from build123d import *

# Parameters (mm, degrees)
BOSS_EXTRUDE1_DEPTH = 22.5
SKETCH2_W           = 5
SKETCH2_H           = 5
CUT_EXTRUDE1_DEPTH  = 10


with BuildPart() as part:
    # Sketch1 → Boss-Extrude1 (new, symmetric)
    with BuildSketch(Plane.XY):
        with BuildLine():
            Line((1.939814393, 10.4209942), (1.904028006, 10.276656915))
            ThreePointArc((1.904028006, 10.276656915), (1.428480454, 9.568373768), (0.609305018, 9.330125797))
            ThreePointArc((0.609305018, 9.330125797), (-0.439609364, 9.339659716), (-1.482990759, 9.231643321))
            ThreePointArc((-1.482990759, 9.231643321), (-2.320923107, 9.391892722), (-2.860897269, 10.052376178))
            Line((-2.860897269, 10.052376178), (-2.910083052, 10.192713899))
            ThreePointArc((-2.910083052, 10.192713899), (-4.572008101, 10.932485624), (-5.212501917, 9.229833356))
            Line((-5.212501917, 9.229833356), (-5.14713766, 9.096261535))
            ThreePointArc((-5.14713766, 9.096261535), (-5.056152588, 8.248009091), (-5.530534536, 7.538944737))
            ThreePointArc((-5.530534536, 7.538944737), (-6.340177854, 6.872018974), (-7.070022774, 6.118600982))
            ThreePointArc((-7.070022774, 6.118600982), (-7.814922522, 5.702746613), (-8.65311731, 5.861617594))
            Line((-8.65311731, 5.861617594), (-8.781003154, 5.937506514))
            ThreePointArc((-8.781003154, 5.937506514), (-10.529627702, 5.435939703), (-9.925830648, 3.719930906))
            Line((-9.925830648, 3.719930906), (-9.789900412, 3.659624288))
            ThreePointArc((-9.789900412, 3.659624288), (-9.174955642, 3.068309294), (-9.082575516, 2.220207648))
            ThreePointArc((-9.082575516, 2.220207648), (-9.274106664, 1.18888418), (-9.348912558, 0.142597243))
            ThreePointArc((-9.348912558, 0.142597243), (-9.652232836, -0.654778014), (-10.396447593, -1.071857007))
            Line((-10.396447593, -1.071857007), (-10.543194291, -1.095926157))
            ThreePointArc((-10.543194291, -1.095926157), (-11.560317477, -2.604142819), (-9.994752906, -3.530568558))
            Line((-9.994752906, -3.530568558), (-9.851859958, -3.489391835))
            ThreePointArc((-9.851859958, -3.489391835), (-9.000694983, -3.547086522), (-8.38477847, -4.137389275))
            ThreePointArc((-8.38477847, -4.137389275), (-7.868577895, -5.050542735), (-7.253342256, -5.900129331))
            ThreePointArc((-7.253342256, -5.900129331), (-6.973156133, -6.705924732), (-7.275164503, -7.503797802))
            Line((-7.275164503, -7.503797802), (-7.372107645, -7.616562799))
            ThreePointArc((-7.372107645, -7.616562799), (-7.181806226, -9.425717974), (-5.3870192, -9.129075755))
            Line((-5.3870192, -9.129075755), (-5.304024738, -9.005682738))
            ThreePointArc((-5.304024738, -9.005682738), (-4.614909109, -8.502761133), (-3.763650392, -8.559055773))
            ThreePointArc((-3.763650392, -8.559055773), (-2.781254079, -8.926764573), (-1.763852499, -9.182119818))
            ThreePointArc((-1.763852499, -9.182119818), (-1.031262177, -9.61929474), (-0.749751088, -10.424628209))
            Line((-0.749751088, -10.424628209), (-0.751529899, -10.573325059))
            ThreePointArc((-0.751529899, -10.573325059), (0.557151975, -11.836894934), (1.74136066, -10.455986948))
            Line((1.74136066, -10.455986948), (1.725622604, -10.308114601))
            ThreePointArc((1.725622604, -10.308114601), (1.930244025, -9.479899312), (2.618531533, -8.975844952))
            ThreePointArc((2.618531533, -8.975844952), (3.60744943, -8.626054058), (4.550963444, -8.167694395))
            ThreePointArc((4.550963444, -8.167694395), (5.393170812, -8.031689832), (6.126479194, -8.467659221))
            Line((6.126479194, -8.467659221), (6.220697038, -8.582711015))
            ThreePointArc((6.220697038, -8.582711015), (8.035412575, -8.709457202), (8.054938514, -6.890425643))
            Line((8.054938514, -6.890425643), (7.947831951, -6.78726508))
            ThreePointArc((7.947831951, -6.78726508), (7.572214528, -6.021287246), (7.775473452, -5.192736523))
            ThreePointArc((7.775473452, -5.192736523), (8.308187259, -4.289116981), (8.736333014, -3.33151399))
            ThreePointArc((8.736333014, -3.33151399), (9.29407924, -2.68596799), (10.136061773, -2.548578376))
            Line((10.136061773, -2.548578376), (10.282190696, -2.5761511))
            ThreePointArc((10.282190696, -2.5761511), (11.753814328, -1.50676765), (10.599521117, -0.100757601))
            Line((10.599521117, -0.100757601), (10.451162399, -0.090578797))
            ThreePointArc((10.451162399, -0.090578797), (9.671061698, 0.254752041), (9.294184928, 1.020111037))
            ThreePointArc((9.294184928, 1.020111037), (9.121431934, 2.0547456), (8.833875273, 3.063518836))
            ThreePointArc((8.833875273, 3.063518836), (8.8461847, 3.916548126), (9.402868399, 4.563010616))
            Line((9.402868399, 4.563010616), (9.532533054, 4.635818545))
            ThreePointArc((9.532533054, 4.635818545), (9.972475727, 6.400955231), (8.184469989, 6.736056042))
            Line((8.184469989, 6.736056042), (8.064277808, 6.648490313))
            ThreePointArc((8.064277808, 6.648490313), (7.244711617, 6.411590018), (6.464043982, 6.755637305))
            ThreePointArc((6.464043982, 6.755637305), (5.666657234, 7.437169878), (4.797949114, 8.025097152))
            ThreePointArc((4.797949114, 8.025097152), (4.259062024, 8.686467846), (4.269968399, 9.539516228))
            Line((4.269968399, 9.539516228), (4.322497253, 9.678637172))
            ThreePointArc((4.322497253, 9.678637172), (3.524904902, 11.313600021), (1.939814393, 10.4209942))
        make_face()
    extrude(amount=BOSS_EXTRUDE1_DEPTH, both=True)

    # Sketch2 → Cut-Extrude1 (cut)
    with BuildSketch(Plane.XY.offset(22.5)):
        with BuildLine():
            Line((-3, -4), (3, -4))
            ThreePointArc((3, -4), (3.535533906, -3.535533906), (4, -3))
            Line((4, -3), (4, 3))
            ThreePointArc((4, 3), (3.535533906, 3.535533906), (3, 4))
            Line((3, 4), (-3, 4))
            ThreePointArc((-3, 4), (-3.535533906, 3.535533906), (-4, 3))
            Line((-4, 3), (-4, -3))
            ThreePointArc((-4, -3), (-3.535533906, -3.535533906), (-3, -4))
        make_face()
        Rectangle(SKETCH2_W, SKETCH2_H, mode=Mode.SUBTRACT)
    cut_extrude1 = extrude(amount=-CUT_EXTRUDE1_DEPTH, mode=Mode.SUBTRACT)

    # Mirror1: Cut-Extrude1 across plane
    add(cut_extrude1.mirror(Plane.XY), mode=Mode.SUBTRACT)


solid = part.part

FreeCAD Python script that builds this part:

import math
import FreeCAD as App
import Part
import Sketcher

V = App.Vector
Q = App.Units.Quantity


def add_polygon(sketch, points):
    """Adds a closed chain of lines whose ends are joined by coincident constraints."""
    first, n = sketch.GeometryCount, len(points)
    for a, b in zip(points, points[1:] + points[:1]):
        sketch.addGeometry(Part.LineSegment(App.Vector(*a, 0), App.Vector(*b, 0)), False)
    for i in range(n):
        sketch.addConstraint(Sketcher.Constraint("Coincident", first + i, 2, first + (i + 1) % n, 1))

doc = App.newDocument("Part")
body = doc.addObject("PartDesign::Body", "Body")

# Sketch on XY plane
sketch1 = doc.addObject("Sketcher::SketchObject", "Sketch")
body.addObject(sketch1)
sketch1.AttachmentSupport = (doc.XY_Plane, [""])
sketch1.MapMode = "FlatFace"
sketch1.addGeometry([
    Part.LineSegment(V(1.94, 10.42, 0), V(1.9, 10.28, 0)),  # 0
    Part.ArcOfCircle(Part.Circle(V(0.69, 10.58, 0), V(0, 0, 1), 1.25), math.radians(-94), math.radians(-14)),  # 1
    Part.ArcOfCircle(Part.Circle(V(0, 0, 0), V(0, 0, 1), 9.35), math.radians(86.26), math.radians(99.13)),  # 2
    Part.ArcOfCircle(Part.Circle(V(-1.68, 10.47, 0), V(0, 0, 1), 1.25), math.radians(-161), math.radians(-81)),  # 3
    Part.LineSegment(V(-2.86, 10.05, 0), V(-2.91, 10.19, 0)),  # 4
    Part.ArcOfCircle(Part.Circle(V(-4.09, 9.78, 0), V(0, 0, 1), 1.25), math.radians(19), math.radians(206)),  # 5
    Part.LineSegment(V(-5.21, 9.23, 0), V(-5.15, 9.1, 0)),  # 6
    Part.ArcOfCircle(Part.Circle(V(-6.27, 8.55, 0), V(0, 0, 1), 1.25), math.radians(-54), math.radians(26)),  # 7
    Part.ArcOfCircle(Part.Circle(V(0, 0, 0), V(0, 0, 1), 9.35), math.radians(126.26), math.radians(139.13)),  # 8
    Part.ArcOfCircle(Part.Circle(V(-8.02, 6.94, 0), V(0, 0, 1), 1.25), math.radians(-121), math.radians(-41)),  # 9
    Part.LineSegment(V(-8.65, 5.86, 0), V(-8.78, 5.94, 0)),  # 10
    Part.ArcOfCircle(Part.Circle(V(-9.42, 4.86, 0), V(0, 0, 1), 1.25), math.radians(59), math.radians(246)),  # 11
    Part.LineSegment(V(-9.93, 3.72, 0), V(-9.79, 3.66, 0)),  # 12
    Part.ArcOfCircle(Part.Circle(V(-10.3, 2.52, 0), V(0, 0, 1), 1.25), math.radians(-14), math.radians(66)),  # 13
    Part.ArcOfCircle(Part.Circle(V(0, 0, 0), V(0, 0, 1), 9.35), math.radians(166.26), math.radians(179.13)),  # 14
    Part.ArcOfCircle(Part.Circle(V(-10.6, 0.16, 0), V(0, 0, 1), 1.25), math.radians(-81), math.radians(-1)),  # 15
    Part.LineSegment(V(-10.4, -1.07, 0), V(-10.54, -1.1, 0)),  # 16
    Part.ArcOfCircle(Part.Circle(V(-10.34, -2.33, 0), V(0, 0, 1), 1.25), math.radians(99), math.radians(286)),  # 17
    Part.LineSegment(V(-9.99, -3.53, 0), V(-9.85, -3.49, 0)),  # 18
    Part.ArcOfCircle(Part.Circle(V(-9.51, -4.69, 0), V(0, 0, 1), 1.25), math.radians(26), math.radians(106)),  # 19
    Part.ArcOfCircle(Part.Circle(V(0, 0, 0), V(0, 0, 1), 9.35), math.radians(-153.74), math.radians(-140.87)),  # 20
    Part.ArcOfCircle(Part.Circle(V(-8.22, -6.69, 0), V(0, 0, 1), 1.25), math.radians(-41), math.radians(39)),  # 21
    Part.LineSegment(V(-7.28, -7.5, 0), V(-7.37, -7.62, 0)),  # 22
    Part.ArcOfCircle(Part.Circle(V(-6.42, -8.43, 0), V(0, 0, 1), 1.25), math.radians(139), math.radians(326)),  # 23
    Part.LineSegment(V(-5.39, -9.13, 0), V(-5.3, -9.01, 0)),  # 24
    Part.ArcOfCircle(Part.Circle(V(-4.27, -9.7, 0), V(0, 0, 1), 1.25), math.radians(66), math.radians(146)),  # 25
    Part.ArcOfCircle(Part.Circle(V(0, 0, 0), V(0, 0, 1), 9.35), math.radians(-113.74), math.radians(-100.87)),  # 26
    Part.ArcOfCircle(Part.Circle(V(-2, -10.41, 0), V(0, 0, 1), 1.25), math.radians(-1), math.radians(79)),  # 27
    Part.LineSegment(V(-0.75, -10.42, 0), V(-0.75, -10.57, 0)),  # 28
    Part.ArcOfCircle(Part.Circle(V(0.5, -10.59, 0), V(0, 0, 1), 1.25), math.radians(179), math.radians(366)),  # 29
    Part.LineSegment(V(1.74, -10.46, 0), V(1.73, -10.31, 0)),  # 30
    Part.ArcOfCircle(Part.Circle(V(2.97, -10.18, 0), V(0, 0, 1), 1.25), math.radians(106), math.radians(186)),  # 31
    Part.ArcOfCircle(Part.Circle(V(0, 0, 0), V(0, 0, 1), 9.35), math.radians(-73.74), math.radians(-60.87)),  # 32
    Part.ArcOfCircle(Part.Circle(V(5.16, -9.26, 0), V(0, 0, 1), 1.25), math.radians(39), math.radians(119)),  # 33
    Part.LineSegment(V(6.13, -8.47, 0), V(6.22, -8.58, 0)),  # 34
    Part.ArcOfCircle(Part.Circle(V(7.19, -7.79, 0), V(0, 0, 1), 1.25), math.radians(-141), math.radians(46)),  # 35
    Part.LineSegment(V(8.05, -6.89, 0), V(7.95, -6.79, 0)),  # 36
    Part.ArcOfCircle(Part.Circle(V(8.81, -5.89, 0), V(0, 0, 1), 1.25), math.radians(146), math.radians(226)),  # 37
    Part.ArcOfCircle(Part.Circle(V(0, 0, 0), V(0, 0, 1), 9.35), math.radians(-33.74), math.radians(-20.87)),  # 38
    Part.ArcOfCircle(Part.Circle(V(9.9, -3.78, 0), V(0, 0, 1), 1.25), math.radians(79), math.radians(159)),  # 39
    Part.LineSegment(V(10.14, -2.55, 0), V(10.28, -2.58, 0)),  # 40
    Part.ArcOfCircle(Part.Circle(V(10.51, -1.35, 0), V(0, 0, 1), 1.25), math.radians(-101), math.radians(86)),  # 41
    Part.LineSegment(V(10.6, -0.1, 0), V(10.45, -0.09, 0)),  # 42
    Part.ArcOfCircle(Part.Circle(V(10.54, 1.16, 0), V(0, 0, 1), 1.25), math.radians(-174), math.radians(-94)),  # 43
    Part.ArcOfCircle(Part.Circle(V(0, 0, 0), V(0, 0, 1), 9.35), math.radians(6.26), math.radians(19.13)),  # 44
    Part.ArcOfCircle(Part.Circle(V(10.01, 3.47, 0), V(0, 0, 1), 1.25), math.radians(119), math.radians(199)),  # 45
    Part.LineSegment(V(9.4, 4.56, 0), V(9.53, 4.64, 0)),  # 46
    Part.ArcOfCircle(Part.Circle(V(8.92, 5.73, 0), V(0, 0, 1), 1.25), math.radians(-61), math.radians(126)),  # 47
    Part.LineSegment(V(8.18, 6.74, 0), V(8.06, 6.65, 0)),  # 48
    Part.ArcOfCircle(Part.Circle(V(7.33, 7.66, 0), V(0, 0, 1), 1.25), math.radians(-134), math.radians(-54)),  # 49
    Part.ArcOfCircle(Part.Circle(V(0, 0, 0), V(0, 0, 1), 9.35), math.radians(46.26), math.radians(59.13)),  # 50
    Part.ArcOfCircle(Part.Circle(V(5.44, 9.1, 0), V(0, 0, 1), 1.25), math.radians(159), math.radians(239)),  # 51
    Part.LineSegment(V(4.27, 9.54, 0), V(4.32, 9.68, 0)),  # 52
    Part.ArcOfCircle(Part.Circle(V(3.15, 10.12, 0), V(0, 0, 1), 1.25), math.radians(-21), math.radians(166)),  # 53
], False)
sketch1.addConstraint([
    Sketcher.Constraint("Tangent", 0, 2, 1, 2),
    Sketcher.Constraint("Tangent", 1, 1, 2, 1),
    Sketcher.Constraint("Tangent", 2, 2, 3, 2),
    Sketcher.Constraint("Tangent", 3, 1, 4, 1),
    Sketcher.Constraint("Tangent", 4, 2, 5, 1),
    Sketcher.Constraint("Tangent", 5, 2, 6, 1),
    Sketcher.Constraint("Tangent", 6, 2, 7, 2),
    Sketcher.Constraint("Tangent", 7, 1, 8, 1),
    Sketcher.Constraint("Tangent", 8, 2, 9, 2),
    Sketcher.Constraint("Tangent", 9, 1, 10, 1),
    Sketcher.Constraint("Tangent", 10, 2, 11, 1),
    Sketcher.Constraint("Tangent", 11, 2, 12, 1),
    Sketcher.Constraint("Tangent", 12, 2, 13, 2),
    Sketcher.Constraint("Tangent", 13, 1, 14, 1),
    Sketcher.Constraint("Tangent", 14, 2, 15, 2),
    Sketcher.Constraint("Tangent", 15, 1, 16, 1),
    Sketcher.Constraint("Tangent", 16, 2, 17, 1),
    Sketcher.Constraint("Tangent", 17, 2, 18, 1),
    Sketcher.Constraint("Tangent", 18, 2, 19, 2),
    Sketcher.Constraint("Tangent", 19, 1, 20, 1),
    Sketcher.Constraint("Tangent", 20, 2, 21, 2),
    Sketcher.Constraint("Tangent", 21, 1, 22, 1),
    Sketcher.Constraint("Tangent", 22, 2, 23, 1),
    Sketcher.Constraint("Tangent", 23, 2, 24, 1),
    Sketcher.Constraint("Tangent", 24, 2, 25, 2),
    Sketcher.Constraint("Tangent", 25, 1, 26, 1),
    Sketcher.Constraint("Tangent", 26, 2, 27, 2),
    Sketcher.Constraint("Tangent", 27, 1, 28, 1),
    Sketcher.Constraint("Tangent", 28, 2, 29, 1),
    Sketcher.Constraint("Tangent", 29, 2, 30, 1),
    Sketcher.Constraint("Tangent", 30, 2, 31, 2),
    Sketcher.Constraint("Tangent", 31, 1, 32, 1),
    Sketcher.Constraint("Tangent", 32, 2, 33, 2),
    Sketcher.Constraint("Tangent", 33, 1, 34, 1),
    Sketcher.Constraint("Tangent", 34, 2, 35, 1),
    Sketcher.Constraint("Tangent", 35, 2, 36, 1),
    Sketcher.Constraint("Tangent", 36, 2, 37, 2),
    Sketcher.Constraint("Tangent", 37, 1, 38, 1),
    Sketcher.Constraint("Tangent", 38, 2, 39, 2),
    Sketcher.Constraint("Tangent", 39, 1, 40, 1),
    Sketcher.Constraint("Tangent", 40, 2, 41, 1),
    Sketcher.Constraint("Tangent", 41, 2, 42, 1),
    Sketcher.Constraint("Tangent", 42, 2, 43, 2),
    Sketcher.Constraint("Tangent", 43, 1, 44, 1),
    Sketcher.Constraint("Tangent", 44, 2, 45, 2),
    Sketcher.Constraint("Tangent", 45, 1, 46, 1),
    Sketcher.Constraint("Tangent", 46, 2, 47, 1),
    Sketcher.Constraint("Tangent", 47, 2, 48, 1),
    Sketcher.Constraint("Tangent", 48, 2, 49, 2),
    Sketcher.Constraint("Tangent", 49, 1, 50, 1),
    Sketcher.Constraint("Tangent", 50, 2, 51, 2),
    Sketcher.Constraint("Tangent", 51, 1, 52, 1),
    Sketcher.Constraint("Tangent", 52, 2, 53, 1),
    Sketcher.Constraint("Tangent", 53, 2, 0, 1),
    Sketcher.Constraint("Coincident", 2, 3, -1, 1),
    Sketcher.Constraint("Coincident", 8, 3, -1, 1),
    Sketcher.Constraint("Coincident", 14, 3, -1, 1),
    Sketcher.Constraint("Coincident", 20, 3, -1, 1),
    Sketcher.Constraint("Coincident", 26, 3, -1, 1),
    Sketcher.Constraint("Coincident", 32, 3, -1, 1),
    Sketcher.Constraint("Coincident", 38, 3, -1, 1),
    Sketcher.Constraint("Coincident", 44, 3, -1, 1),
    Sketcher.Constraint("Coincident", 50, 3, -1, 1),
    Sketcher.Constraint("Equal", 1, 3),
    Sketcher.Constraint("Equal", 3, 5),
    Sketcher.Constraint("Equal", 5, 7),
    Sketcher.Constraint("Equal", 2, 8),
    Sketcher.Constraint("Equal", 7, 9),
    Sketcher.Constraint("Equal", 9, 11),
    Sketcher.Constraint("Equal", 11, 13),
    Sketcher.Constraint("Equal", 8, 14),
    Sketcher.Constraint("Equal", 13, 15),
    Sketcher.Constraint("Equal", 15, 17),
    Sketcher.Constraint("Equal", 17, 19),
    Sketcher.Constraint("Equal", 14, 20),
    Sketcher.Constraint("Equal", 19, 21),
    Sketcher.Constraint("Equal", 21, 23),
    Sketcher.Constraint("Equal", 23, 25),
    Sketcher.Constraint("Equal", 20, 26),
    Sketcher.Constraint("Equal", 25, 27),
    Sketcher.Constraint("Equal", 27, 29),
    Sketcher.Constraint("Equal", 29, 31),
    Sketcher.Constraint("Equal", 26, 32),
    Sketcher.Constraint("Equal", 31, 33),
    Sketcher.Constraint("Equal", 33, 35),
    Sketcher.Constraint("Equal", 35, 37),
    Sketcher.Constraint("Equal", 32, 38),
    Sketcher.Constraint("Equal", 37, 39),
    Sketcher.Constraint("Equal", 39, 41),
    Sketcher.Constraint("Equal", 41, 43),
    Sketcher.Constraint("Equal", 38, 44),
    Sketcher.Constraint("Equal", 43, 45),
    Sketcher.Constraint("Equal", 45, 47),
    Sketcher.Constraint("Equal", 47, 49),
    Sketcher.Constraint("Equal", 44, 50),
    Sketcher.Constraint("Equal", 49, 51),
    Sketcher.Constraint("Equal", 51, 53),
    Sketcher.Constraint("Equal", 0, 4),
    Sketcher.Constraint("Equal", 4, 6),
    Sketcher.Constraint("Equal", 6, 10),
    Sketcher.Constraint("Equal", 10, 12),
    Sketcher.Constraint("Equal", 12, 16),
    Sketcher.Constraint("Equal", 16, 18),
    Sketcher.Constraint("Equal", 18, 22),
    Sketcher.Constraint("Equal", 22, 24),
    Sketcher.Constraint("Equal", 24, 28),
    Sketcher.Constraint("Equal", 28, 30),
    Sketcher.Constraint("Equal", 30, 34),
    Sketcher.Constraint("Equal", 34, 36),
    Sketcher.Constraint("Equal", 36, 40),
    Sketcher.Constraint("Equal", 40, 42),
    Sketcher.Constraint("Equal", 42, 46),
    Sketcher.Constraint("Equal", 46, 48),
    Sketcher.Constraint("Equal", 48, 52),
    Sketcher.Constraint("Radius", 1, Q("1.25 mm")),
    Sketcher.Constraint("Radius", 2, Q("9.35 mm")),
    Sketcher.Constraint("DistanceX", 5, 2, -1, 1, Q("5.212502 mm")),
    Sketcher.Constraint("DistanceY", -1, 1, 8, 2, Q("6.118601 mm")),
    Sketcher.Constraint("DistanceX", 12, 2, -1, 1, Q("9.7899 mm")),
    Sketcher.Constraint("DistanceY", -1, 1, 1, 3, Q("10.577469 mm")),
    Sketcher.Constraint("DistanceX", 3, 3, -1, 1, Q("1.681252 mm")),
    Sketcher.Constraint("DistanceX", 5, 3, -1, 1, Q("4.089729 mm")),
    Sketcher.Constraint("DistanceY", -1, 1, 15, 3, Q("0.161661 mm")),
    Sketcher.Constraint("DistanceX", 19, 3, -1, 1, Q("9.505738 mm")),
    Sketcher.Constraint("DistanceX", 21, 3, -1, 1, Q("8.22304 mm")),
    Sketcher.Constraint("DistanceX", 23, 3, -1, 1, Q("6.424232 mm")),
    Sketcher.Constraint("DistanceX", 27, 3, -1, 1, Q("1.999662 mm")),
    Sketcher.Constraint("DistanceX", -1, 1, 29, 3, Q("0.498381 mm")),
    Sketcher.Constraint("DistanceX", -1, 1, 33, 3, Q("5.159381 mm")),
    Sketcher.Constraint("DistanceY", 35, 3, -1, 1, Q("7.790738 mm")),
    Sketcher.Constraint("DistanceX", -1, 1, 39, 3, Q("9.904292 mm")),
    Sketcher.Constraint("DistanceX", -1, 1, 41, 3, Q("10.51396 mm")),
    Sketcher.Constraint("DistanceY", -1, 1, 45, 3, Q("3.47308 mm")),
    Sketcher.Constraint("DistanceY", -1, 1, 47, 3, Q("5.725749 mm")),
    Sketcher.Constraint("DistanceY", -1, 1, 51, 3, Q("9.097971 mm")),
])
pad1 = doc.addObject("PartDesign::Pad", "Pad")
body.addObject(pad1)
pad1.Profile = sketch1
pad1.Length = 45
pad1.Midplane = True

# Sketch on XY plane
sketch2 = doc.addObject("Sketcher::SketchObject", "Sketch001")
body.addObject(sketch2)
sketch2.AttachmentSupport = (doc.XY_Plane, [""])
sketch2.MapMode = "FlatFace"
sketch2.AttachmentOffset = App.Placement(V(0, 0, 22.5), App.Rotation())
sketch2.addGeometry(Part.LineSegment(V(-3, -4, 0), V(3, -4, 0)), False)  # 0
sketch2.addGeometry(Part.ArcOfCircle(Part.Circle(V(0, 0, 0), V(0, 0, 1), 5), math.radians(-53.13), math.radians(-36.87)), False)  # 1
sketch2.addGeometry(Part.LineSegment(V(4, -3, 0), V(4, 3, 0)), False)  # 2
sketch2.addGeometry(Part.ArcOfCircle(Part.Circle(V(0, 0, 0), V(0, 0, 1), 5), math.radians(36.87), math.radians(53.13)), False)  # 3
sketch2.addGeometry(Part.LineSegment(V(3, 4, 0), V(-3, 4, 0)), False)  # 4
sketch2.addGeometry(Part.ArcOfCircle(Part.Circle(V(0, 0, 0), V(0, 0, 1), 5), math.radians(126.87), math.radians(143.13)), False)  # 5
sketch2.addGeometry(Part.LineSegment(V(-4, 3, 0), V(-4, -3, 0)), False)  # 6
sketch2.addGeometry(Part.ArcOfCircle(Part.Circle(V(0, 0, 0), V(0, 0, 1), 5), math.radians(-143.13), math.radians(-126.87)), False)  # 7
add_polygon(sketch2, [(2.5, -2.5), (-2.5, -2.5), (-2.5, 2.5), (2.5, 2.5)])  # lines 8-11
sketch2.addConstraint([
    Sketcher.Constraint("Coincident", 0, 2, 1, 1),
    Sketcher.Constraint("Coincident", 1, 2, 2, 1),
    Sketcher.Constraint("Coincident", 2, 2, 3, 1),
    Sketcher.Constraint("Coincident", 3, 2, 4, 1),
    Sketcher.Constraint("Coincident", 4, 2, 5, 1),
    Sketcher.Constraint("Coincident", 5, 2, 6, 1),
    Sketcher.Constraint("Coincident", 6, 2, 7, 1),
    Sketcher.Constraint("Coincident", 7, 2, 0, 1),
    Sketcher.Constraint("Horizontal", 0),
    Sketcher.Constraint("Vertical", 2),
    Sketcher.Constraint("Horizontal", 4),
    Sketcher.Constraint("Vertical", 6),
    Sketcher.Constraint("Horizontal", 8),
    Sketcher.Constraint("Vertical", 9),
    Sketcher.Constraint("Horizontal", 10),
    Sketcher.Constraint("Vertical", 11),
    Sketcher.Constraint("Coincident", 1, 3, -1, 1),
    Sketcher.Constraint("Coincident", 3, 3, -1, 1),
    Sketcher.Constraint("Coincident", 5, 3, -1, 1),
    Sketcher.Constraint("Coincident", 7, 3, -1, 1),
    Sketcher.Constraint("Equal", 1, 3),
    Sketcher.Constraint("Equal", 3, 5),
    Sketcher.Constraint("Equal", 5, 7),
    Sketcher.Constraint("Symmetric", 8, 2, 10, 2, -1, 1),
    Sketcher.Constraint("Horizontal", 2, 2, 5, 2),
    Sketcher.Constraint("Vertical", 0, 2, 3, 2),
    Sketcher.Constraint("Equal", 4, 2),
    Sketcher.Constraint("Equal", 10, 9),
    Sketcher.Constraint("Radius", 1, Q("5 mm")),
    Sketcher.Constraint("DistanceX", 0, 1, 0, 2, Q("6 mm")),
    Sketcher.Constraint("DistanceX", 8, 2, 8, 1, Q("5 mm")),
])
pocket1 = doc.addObject("PartDesign::Pocket", "Pocket")
body.addObject(pocket1)
pocket1.Profile = sketch2
pocket1.Length = 10
doc.recompute()

mirrored = doc.addObject("PartDesign::Mirrored", "Mirrored")
body.addObject(mirrored)
mirrored.Originals = [pocket1]
mirrored.MirrorPlane = (doc.XY_Plane, [""])
body.Tip = mirrored

doc.recompute()
